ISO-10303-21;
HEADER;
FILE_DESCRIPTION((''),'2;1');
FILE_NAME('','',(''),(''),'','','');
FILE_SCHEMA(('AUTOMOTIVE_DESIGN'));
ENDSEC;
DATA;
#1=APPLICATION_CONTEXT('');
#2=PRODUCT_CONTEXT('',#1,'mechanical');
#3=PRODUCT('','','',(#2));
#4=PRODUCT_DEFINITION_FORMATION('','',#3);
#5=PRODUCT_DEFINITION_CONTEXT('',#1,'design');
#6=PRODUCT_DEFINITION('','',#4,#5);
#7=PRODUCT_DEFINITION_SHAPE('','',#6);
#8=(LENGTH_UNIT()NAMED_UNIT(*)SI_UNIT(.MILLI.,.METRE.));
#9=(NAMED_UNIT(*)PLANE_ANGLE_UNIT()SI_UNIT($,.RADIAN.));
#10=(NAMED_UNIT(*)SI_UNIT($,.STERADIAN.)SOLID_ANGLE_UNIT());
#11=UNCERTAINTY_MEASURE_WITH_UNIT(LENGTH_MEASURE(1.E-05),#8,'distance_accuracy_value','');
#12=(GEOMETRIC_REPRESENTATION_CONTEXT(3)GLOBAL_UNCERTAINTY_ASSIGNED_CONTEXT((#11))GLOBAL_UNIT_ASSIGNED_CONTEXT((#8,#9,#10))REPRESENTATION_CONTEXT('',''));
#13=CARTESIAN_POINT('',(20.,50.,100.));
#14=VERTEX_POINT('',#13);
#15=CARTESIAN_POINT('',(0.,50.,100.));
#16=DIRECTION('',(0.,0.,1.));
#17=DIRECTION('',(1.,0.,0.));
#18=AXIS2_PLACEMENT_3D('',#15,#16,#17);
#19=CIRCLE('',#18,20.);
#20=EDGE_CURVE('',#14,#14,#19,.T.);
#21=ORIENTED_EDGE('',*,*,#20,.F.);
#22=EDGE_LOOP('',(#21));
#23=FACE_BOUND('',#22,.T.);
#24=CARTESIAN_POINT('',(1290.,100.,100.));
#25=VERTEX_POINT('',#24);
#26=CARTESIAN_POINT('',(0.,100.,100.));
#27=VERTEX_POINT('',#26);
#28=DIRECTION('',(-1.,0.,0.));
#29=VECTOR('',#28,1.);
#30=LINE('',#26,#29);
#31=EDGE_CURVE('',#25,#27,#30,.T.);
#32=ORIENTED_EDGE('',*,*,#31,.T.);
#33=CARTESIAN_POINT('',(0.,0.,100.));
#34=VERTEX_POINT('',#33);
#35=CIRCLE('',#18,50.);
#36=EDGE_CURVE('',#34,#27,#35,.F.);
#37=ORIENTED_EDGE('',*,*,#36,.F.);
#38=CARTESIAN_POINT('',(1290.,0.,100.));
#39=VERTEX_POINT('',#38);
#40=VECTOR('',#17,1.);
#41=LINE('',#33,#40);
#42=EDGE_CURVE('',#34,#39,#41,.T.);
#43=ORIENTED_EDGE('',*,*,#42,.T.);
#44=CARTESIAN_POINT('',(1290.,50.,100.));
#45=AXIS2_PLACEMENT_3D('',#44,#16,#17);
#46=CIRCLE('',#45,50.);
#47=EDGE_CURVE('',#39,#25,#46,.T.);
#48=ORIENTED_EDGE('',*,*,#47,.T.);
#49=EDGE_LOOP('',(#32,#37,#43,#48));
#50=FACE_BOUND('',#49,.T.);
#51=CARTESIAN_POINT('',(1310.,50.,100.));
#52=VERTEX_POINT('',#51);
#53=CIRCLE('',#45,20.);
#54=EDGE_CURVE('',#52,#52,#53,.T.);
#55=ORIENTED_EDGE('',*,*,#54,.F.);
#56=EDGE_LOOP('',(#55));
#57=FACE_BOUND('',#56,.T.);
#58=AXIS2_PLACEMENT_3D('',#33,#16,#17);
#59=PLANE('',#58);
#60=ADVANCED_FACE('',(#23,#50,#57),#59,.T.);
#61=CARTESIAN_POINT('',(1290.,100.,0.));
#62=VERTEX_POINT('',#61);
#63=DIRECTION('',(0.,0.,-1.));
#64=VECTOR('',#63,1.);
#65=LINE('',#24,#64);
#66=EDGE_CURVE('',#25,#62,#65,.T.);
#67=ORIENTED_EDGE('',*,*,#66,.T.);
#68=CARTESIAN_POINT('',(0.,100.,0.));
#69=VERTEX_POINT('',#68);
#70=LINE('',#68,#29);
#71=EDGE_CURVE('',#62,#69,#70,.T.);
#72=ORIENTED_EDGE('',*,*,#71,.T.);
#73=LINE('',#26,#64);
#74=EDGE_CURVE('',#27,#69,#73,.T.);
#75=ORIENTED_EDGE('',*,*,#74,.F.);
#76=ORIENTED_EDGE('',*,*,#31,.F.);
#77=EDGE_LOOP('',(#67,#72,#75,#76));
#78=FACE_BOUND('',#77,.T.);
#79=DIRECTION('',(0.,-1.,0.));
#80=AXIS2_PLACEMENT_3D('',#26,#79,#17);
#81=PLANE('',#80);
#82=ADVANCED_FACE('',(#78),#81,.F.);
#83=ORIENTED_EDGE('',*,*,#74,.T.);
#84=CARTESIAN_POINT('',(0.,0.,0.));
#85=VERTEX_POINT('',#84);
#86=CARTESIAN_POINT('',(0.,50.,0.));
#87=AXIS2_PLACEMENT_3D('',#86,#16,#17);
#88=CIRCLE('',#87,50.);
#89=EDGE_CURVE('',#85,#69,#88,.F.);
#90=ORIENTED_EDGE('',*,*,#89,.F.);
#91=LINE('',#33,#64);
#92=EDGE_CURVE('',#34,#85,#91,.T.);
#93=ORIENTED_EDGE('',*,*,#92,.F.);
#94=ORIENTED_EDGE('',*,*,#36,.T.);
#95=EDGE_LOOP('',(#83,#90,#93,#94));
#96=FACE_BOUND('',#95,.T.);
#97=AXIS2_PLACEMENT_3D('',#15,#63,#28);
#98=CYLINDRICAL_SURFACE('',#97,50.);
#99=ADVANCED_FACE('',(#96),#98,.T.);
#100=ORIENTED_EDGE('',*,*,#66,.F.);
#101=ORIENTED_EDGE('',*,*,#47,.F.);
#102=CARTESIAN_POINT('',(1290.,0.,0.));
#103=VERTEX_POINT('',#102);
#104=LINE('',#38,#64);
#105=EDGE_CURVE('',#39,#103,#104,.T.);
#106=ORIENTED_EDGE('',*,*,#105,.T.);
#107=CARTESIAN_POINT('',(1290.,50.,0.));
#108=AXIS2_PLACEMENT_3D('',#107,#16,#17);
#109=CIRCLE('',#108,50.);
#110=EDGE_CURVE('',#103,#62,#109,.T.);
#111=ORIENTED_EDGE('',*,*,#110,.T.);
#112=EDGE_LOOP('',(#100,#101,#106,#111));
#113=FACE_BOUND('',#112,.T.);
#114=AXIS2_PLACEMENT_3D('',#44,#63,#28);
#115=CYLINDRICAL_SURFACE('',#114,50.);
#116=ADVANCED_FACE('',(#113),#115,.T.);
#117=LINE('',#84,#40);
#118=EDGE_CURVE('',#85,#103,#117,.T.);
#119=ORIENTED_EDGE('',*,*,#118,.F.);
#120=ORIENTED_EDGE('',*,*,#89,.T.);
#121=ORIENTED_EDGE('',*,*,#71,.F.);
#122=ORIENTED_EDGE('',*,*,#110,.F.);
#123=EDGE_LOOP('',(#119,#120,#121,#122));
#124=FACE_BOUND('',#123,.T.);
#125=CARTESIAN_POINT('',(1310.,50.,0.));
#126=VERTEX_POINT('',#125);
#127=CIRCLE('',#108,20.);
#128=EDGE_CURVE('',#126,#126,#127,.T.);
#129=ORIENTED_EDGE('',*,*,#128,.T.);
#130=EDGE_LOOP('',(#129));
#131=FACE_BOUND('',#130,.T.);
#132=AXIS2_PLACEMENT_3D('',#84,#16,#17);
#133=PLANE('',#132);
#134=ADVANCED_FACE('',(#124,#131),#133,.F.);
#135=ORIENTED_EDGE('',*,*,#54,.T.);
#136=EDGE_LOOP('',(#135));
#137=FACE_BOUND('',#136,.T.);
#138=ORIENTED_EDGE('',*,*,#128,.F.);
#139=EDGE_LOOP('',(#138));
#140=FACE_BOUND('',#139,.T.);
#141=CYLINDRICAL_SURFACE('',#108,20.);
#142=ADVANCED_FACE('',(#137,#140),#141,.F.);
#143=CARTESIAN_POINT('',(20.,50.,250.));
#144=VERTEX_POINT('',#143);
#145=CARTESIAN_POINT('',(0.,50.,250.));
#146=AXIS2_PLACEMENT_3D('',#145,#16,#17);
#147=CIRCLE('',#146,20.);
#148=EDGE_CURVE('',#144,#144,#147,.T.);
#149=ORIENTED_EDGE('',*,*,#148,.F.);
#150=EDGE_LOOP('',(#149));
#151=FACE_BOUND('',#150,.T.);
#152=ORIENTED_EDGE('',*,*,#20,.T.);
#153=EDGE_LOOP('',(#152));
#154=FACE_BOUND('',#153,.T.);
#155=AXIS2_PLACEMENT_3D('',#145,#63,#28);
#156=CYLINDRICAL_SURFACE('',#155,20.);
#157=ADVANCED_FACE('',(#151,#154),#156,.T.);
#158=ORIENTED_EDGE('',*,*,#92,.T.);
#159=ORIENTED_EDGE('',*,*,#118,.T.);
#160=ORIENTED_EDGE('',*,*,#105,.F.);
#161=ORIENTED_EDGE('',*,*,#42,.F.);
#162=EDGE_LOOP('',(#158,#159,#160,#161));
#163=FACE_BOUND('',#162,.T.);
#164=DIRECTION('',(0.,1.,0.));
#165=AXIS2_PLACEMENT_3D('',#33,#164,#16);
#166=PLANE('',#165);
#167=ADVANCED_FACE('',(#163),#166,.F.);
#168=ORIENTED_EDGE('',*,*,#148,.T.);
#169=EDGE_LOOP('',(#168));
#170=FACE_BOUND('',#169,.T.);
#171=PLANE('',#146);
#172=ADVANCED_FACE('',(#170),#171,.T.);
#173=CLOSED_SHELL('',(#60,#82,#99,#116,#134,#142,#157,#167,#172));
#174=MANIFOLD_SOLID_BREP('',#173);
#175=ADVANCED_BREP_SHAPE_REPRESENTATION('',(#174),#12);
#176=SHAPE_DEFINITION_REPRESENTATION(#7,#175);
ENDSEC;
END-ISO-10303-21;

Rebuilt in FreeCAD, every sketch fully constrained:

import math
import FreeCAD as App
import Part
import Sketcher

V = App.Vector
Q = App.Units.Quantity

doc = App.newDocument("Part")
body = doc.addObject("PartDesign::Body", "Body")

# Sketch on XY plane
sketch1 = doc.addObject("Sketcher::SketchObject", "Sketch")
body.addObject(sketch1)
sketch1.AttachmentSupport = (doc.XY_Plane, [""])
sketch1.MapMode = "FlatFace"
sketch1.addGeometry(Part.LineSegment(V(0, 0, 0), V(1290, 0, 0)), False)
sketch1.addGeometry(Part.ArcOfCircle(Part.Circle(V(1290, 50, 0), V(0, 0, 1), 50), math.radians(-90), math.radians(90)), False)
sketch1.addGeometry(Part.LineSegment(V(1290, 100, 0), V(0, 100, 0)), False)
sketch1.addGeometry(Part.ArcOfCircle(Part.Circle(V(0, 50, 0), V(0, 0, 1), 50), math.radians(90), math.radians(270)), False)
sketch1.addConstraint(Sketcher.Constraint("Tangent", 0, 2, 1, 1))
sketch1.addConstraint(Sketcher.Constraint("Tangent", 1, 2, 2, 1))
sketch1.addConstraint(Sketcher.Constraint("Tangent", 2, 2, 3, 1))
sketch1.addConstraint(Sketcher.Constraint("Tangent", 3, 2, 0, 1))
sketch1.addConstraint(Sketcher.Constraint("Horizontal", 0))
sketch1.addConstraint(Sketcher.Constraint("Horizontal", 2))
sketch1.addConstraint(Sketcher.Constraint("Coincident", 3, 2, -1, 1))
sketch1.addConstraint(Sketcher.Constraint("Radius", 1, Q("50 mm")))
sketch1.addConstraint(Sketcher.Constraint("DistanceX", 0, 1, 0, 2, Q("1290 mm")))
pad1 = doc.addObject("PartDesign::Pad", "Pad")
body.addObject(pad1)
pad1.Profile = sketch1
pad1.Length = 100

# Sketch on XY plane
sketch2 = doc.addObject("Sketcher::SketchObject", "Sketch001")
body.addObject(sketch2)
sketch2.AttachmentSupport = (doc.XY_Plane, [""])
sketch2.MapMode = "FlatFace"
sketch2.AttachmentOffset = App.Placement(V(0, 0, 100), App.Rotation())
sketch2.addGeometry(Part.Circle(V(1290, 50, 0), V(0, 0, 1), 20), False)
sketch2.addConstraint(Sketcher.Constraint("Diameter", 0, Q("40 mm")))
sketch2.addConstraint(Sketcher.Constraint("DistanceX", -1, 1, 0, 3, Q("1290 mm")))
sketch2.addConstraint(Sketcher.Constraint("DistanceY", -1, 1, 0, 3, Q("50 mm")))
pocket1 = doc.addObject("PartDesign::Pocket", "Pocket")
body.addObject(pocket1)
pocket1.Profile = sketch2
pocket1.Length = 100

# Sketch on XY plane
sketch3 = doc.addObject("Sketcher::SketchObject", "Sketch002")
body.addObject(sketch3)
sketch3.AttachmentSupport = (doc.XY_Plane, [""])
sketch3.MapMode = "FlatFace"
sketch3.AttachmentOffset = App.Placement(V(0, 0, 100), App.Rotation())
sketch3.addGeometry(Part.Circle(V(0, 50, 0), V(0, 0, 1), 20), False)
sketch3.addConstraint(Sketcher.Constraint("PointOnObject", 0, 3, -2))
sketch3.addConstraint(Sketcher.Constraint("Diameter", 0, Q("40 mm")))
sketch3.addConstraint(Sketcher.Constraint("DistanceY", -1, 1, 0, 3, Q("50 mm")))
pad2 = doc.addObject("PartDesign::Pad", "Pad001")
body.addObject(pad2)
pad2.Profile = sketch3
pad2.Length = 150

doc.recompute()
